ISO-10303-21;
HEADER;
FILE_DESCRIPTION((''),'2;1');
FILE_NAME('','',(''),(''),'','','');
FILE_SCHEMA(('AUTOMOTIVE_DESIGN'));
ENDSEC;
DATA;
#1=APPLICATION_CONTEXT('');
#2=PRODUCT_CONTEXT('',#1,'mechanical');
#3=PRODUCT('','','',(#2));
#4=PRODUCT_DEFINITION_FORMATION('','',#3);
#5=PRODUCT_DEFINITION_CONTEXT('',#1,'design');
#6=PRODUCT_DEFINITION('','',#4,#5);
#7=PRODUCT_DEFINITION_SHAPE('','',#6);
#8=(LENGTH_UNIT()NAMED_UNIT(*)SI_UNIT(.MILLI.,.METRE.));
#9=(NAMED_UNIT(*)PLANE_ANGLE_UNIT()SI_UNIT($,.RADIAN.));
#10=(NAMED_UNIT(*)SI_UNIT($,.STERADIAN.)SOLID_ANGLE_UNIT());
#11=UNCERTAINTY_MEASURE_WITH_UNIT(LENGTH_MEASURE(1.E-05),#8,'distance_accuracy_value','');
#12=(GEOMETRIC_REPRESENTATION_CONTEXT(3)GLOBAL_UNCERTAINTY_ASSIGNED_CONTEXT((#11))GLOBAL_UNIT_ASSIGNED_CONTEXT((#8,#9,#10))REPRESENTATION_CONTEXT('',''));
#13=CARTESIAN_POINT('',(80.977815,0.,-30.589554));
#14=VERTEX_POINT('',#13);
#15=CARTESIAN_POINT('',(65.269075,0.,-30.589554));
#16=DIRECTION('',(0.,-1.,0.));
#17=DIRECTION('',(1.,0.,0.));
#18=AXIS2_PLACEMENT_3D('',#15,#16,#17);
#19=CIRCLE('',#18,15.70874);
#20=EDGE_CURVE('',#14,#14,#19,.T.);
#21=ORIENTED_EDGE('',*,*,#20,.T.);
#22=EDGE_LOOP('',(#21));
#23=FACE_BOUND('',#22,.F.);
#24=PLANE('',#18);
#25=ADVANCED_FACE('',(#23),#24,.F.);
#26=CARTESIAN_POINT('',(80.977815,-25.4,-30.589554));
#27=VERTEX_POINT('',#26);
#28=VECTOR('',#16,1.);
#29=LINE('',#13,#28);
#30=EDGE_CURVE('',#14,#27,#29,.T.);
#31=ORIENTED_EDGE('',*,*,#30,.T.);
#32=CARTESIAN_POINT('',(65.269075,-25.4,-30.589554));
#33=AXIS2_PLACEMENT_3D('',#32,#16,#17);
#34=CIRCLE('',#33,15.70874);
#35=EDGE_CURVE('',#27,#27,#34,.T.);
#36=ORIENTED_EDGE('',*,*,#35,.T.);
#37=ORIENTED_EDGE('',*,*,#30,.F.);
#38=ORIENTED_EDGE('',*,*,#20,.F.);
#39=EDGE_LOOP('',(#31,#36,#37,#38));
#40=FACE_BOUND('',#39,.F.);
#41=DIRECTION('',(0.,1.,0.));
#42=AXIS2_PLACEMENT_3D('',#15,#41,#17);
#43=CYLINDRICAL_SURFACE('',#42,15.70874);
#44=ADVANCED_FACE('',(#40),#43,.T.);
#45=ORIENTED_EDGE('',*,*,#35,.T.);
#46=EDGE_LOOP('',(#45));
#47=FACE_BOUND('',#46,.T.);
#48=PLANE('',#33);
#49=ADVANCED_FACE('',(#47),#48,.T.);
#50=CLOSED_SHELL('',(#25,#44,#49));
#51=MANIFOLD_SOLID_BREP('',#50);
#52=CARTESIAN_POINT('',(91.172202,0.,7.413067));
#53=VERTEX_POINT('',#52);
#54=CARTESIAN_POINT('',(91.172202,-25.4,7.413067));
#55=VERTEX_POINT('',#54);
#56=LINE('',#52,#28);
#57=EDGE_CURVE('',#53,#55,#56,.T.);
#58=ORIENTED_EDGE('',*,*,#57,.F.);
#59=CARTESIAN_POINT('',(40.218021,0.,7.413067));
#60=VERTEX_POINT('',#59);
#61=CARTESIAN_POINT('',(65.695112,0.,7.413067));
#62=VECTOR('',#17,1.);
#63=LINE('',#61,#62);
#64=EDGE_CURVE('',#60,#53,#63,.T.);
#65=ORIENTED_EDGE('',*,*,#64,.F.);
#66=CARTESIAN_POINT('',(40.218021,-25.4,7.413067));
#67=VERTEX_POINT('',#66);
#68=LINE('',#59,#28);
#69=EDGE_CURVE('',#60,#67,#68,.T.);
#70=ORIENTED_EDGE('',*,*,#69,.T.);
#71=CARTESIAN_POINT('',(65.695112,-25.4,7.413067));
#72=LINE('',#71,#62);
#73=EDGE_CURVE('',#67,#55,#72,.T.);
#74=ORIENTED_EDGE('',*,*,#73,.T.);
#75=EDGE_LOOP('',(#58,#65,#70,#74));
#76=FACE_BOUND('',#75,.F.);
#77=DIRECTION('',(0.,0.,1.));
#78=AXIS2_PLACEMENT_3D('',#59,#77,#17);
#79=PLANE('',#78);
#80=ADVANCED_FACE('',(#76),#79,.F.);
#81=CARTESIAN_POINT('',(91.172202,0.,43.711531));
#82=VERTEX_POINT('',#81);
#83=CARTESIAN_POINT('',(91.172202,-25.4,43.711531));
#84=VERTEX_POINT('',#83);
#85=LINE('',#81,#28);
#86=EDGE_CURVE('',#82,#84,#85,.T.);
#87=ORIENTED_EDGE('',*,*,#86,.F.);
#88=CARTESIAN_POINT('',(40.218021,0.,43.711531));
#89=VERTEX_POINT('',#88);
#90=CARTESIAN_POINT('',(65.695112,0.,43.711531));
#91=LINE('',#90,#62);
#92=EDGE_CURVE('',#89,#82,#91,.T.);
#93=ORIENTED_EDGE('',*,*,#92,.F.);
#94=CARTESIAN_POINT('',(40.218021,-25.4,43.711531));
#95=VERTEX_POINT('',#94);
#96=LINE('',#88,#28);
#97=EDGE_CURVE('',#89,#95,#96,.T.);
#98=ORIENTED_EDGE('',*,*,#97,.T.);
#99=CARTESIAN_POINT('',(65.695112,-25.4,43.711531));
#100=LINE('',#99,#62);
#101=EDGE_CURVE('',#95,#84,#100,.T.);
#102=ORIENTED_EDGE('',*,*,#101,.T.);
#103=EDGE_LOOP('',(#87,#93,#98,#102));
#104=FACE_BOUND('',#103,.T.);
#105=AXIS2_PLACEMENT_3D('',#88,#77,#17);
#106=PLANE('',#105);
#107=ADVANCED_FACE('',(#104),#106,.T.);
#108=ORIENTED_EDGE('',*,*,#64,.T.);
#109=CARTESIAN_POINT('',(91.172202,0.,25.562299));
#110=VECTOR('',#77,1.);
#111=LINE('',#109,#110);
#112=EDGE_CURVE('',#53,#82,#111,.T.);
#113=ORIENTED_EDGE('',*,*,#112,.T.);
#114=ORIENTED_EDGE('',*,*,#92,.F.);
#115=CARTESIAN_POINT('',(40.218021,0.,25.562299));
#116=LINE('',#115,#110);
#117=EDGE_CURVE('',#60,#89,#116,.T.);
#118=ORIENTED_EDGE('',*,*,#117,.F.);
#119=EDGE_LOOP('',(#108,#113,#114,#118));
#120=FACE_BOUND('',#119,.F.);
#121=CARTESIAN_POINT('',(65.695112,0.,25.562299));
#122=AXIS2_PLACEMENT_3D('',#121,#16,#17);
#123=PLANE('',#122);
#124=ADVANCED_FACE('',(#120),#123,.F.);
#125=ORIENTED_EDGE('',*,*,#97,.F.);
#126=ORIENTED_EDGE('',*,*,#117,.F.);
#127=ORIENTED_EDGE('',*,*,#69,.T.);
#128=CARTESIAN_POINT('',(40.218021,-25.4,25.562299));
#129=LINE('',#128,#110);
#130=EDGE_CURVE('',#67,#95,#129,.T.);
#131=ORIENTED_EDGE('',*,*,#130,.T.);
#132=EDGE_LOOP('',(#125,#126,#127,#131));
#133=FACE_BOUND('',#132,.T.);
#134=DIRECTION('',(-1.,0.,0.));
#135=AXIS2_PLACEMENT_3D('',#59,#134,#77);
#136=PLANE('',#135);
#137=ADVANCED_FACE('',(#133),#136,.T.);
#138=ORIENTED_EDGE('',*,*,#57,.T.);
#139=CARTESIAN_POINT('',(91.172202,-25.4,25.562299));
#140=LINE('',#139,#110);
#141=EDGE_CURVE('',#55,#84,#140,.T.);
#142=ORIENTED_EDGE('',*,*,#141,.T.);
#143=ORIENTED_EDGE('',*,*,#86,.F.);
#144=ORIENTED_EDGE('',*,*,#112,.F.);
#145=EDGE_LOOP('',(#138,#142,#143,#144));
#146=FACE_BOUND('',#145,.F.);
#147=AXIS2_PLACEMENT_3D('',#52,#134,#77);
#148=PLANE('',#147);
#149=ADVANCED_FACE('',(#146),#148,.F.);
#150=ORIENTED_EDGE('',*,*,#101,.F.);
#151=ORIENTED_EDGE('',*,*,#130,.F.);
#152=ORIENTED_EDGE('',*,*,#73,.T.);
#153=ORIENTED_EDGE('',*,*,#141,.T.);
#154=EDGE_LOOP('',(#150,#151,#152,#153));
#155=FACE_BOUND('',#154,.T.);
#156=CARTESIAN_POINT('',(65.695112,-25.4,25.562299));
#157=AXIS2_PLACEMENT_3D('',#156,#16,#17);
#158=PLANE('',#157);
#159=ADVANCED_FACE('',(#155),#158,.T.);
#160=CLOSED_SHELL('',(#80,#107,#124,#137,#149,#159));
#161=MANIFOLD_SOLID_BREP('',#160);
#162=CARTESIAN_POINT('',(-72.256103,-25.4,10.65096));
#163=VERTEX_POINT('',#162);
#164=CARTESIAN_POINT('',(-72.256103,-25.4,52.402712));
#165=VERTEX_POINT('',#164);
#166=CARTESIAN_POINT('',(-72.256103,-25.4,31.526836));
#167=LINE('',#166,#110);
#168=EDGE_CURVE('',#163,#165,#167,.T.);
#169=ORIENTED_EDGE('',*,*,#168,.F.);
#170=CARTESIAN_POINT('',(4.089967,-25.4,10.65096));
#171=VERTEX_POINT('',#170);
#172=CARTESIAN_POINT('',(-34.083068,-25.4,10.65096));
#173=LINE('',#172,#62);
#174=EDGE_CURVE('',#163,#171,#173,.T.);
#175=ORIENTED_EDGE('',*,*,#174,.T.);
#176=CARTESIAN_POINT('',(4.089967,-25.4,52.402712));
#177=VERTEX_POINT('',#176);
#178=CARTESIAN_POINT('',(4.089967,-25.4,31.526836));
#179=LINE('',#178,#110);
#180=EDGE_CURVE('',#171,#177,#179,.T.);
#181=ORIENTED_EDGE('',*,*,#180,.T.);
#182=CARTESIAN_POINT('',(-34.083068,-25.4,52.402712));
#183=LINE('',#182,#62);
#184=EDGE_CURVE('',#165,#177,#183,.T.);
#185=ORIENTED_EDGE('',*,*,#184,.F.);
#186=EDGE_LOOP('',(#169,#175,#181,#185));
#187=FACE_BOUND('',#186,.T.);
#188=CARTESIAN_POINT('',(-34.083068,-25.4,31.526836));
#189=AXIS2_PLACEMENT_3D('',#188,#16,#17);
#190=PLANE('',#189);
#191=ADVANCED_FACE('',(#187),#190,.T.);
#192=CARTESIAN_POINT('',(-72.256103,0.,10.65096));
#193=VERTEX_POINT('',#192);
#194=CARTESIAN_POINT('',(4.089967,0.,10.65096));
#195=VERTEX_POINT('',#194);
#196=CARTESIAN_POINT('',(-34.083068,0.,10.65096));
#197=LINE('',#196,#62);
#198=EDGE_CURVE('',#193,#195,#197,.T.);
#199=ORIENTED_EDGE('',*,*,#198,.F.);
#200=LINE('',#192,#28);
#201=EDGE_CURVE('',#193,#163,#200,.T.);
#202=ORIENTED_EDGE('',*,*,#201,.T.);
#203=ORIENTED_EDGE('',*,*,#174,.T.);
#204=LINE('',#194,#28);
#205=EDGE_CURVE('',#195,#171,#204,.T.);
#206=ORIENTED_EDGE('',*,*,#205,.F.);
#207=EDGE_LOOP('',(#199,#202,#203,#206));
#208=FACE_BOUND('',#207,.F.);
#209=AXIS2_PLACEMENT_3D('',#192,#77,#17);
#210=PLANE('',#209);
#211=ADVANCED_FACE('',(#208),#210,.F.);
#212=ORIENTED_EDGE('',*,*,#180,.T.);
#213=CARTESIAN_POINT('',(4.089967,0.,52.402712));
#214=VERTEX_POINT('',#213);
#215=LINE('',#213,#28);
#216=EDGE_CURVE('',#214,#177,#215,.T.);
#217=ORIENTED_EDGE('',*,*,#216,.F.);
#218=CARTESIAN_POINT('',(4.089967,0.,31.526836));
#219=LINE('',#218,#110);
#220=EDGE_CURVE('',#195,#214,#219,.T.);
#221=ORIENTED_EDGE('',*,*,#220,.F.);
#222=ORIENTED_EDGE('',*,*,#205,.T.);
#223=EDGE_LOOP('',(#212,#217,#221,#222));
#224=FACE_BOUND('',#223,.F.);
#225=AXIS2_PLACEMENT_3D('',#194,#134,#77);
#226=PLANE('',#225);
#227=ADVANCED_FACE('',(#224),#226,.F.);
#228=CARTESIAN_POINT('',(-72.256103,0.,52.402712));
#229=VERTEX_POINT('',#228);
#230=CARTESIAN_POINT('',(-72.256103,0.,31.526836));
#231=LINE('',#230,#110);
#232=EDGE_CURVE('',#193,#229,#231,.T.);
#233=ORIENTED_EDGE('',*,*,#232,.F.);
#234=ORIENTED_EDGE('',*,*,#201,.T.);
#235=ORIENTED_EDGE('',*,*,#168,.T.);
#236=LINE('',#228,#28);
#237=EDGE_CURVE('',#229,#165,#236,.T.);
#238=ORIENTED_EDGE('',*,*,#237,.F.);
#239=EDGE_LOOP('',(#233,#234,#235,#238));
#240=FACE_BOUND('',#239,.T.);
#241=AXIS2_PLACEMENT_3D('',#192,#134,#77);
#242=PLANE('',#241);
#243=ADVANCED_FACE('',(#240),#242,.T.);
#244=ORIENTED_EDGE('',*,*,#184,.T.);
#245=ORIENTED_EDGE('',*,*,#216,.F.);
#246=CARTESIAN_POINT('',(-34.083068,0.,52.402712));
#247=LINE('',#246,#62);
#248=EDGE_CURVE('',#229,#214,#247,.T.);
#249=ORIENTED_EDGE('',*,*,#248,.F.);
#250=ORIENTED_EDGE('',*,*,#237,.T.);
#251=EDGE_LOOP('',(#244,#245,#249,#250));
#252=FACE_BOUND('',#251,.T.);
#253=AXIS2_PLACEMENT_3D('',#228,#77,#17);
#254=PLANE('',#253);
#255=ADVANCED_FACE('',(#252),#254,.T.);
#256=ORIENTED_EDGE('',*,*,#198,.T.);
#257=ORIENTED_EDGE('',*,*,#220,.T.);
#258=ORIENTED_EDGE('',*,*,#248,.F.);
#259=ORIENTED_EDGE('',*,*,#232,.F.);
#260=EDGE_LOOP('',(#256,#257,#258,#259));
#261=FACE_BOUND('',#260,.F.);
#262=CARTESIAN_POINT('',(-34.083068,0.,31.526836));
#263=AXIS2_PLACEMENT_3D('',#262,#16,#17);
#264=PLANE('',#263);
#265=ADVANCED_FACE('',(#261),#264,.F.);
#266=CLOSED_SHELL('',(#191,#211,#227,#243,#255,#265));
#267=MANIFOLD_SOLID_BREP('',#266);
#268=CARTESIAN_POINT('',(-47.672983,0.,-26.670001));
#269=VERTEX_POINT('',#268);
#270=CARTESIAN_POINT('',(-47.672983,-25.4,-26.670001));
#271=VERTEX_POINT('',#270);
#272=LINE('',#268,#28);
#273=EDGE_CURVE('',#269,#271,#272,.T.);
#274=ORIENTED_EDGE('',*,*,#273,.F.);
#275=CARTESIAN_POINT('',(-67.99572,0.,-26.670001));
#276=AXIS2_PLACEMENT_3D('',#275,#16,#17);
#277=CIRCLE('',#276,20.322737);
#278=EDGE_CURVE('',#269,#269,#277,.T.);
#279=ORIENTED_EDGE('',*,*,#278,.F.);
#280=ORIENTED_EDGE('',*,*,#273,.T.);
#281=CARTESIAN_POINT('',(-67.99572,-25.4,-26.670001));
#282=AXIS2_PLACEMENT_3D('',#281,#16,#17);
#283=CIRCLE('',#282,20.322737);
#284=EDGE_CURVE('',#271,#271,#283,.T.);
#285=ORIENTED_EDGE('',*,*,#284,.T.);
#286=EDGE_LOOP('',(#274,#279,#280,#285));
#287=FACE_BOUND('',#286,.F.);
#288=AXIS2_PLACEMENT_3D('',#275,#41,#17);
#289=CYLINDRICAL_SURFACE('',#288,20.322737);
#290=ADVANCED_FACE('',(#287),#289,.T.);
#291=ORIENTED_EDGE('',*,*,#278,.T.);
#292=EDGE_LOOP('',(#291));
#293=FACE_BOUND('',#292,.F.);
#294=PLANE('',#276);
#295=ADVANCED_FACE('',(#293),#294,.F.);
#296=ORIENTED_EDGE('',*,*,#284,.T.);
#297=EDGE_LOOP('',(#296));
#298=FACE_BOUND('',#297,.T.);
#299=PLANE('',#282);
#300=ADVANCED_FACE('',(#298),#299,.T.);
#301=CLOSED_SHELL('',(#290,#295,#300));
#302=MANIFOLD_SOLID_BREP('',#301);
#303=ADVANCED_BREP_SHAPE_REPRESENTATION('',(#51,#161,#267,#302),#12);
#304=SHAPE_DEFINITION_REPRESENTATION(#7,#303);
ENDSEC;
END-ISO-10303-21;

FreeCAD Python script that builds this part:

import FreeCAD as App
import Part
import Sketcher

V = App.Vector
Q = App.Units.Quantity


def add_polygon(sketch, points):
    """Adds a closed chain of lines whose ends are joined by coincident constraints."""
    first, n = sketch.GeometryCount, len(points)
    for a, b in zip(points, points[1:] + points[:1]):
        sketch.addGeometry(Part.LineSegment(App.Vector(*a, 0), App.Vector(*b, 0)), False)
    for i in range(n):
        sketch.addConstraint(Sketcher.Constraint("Coincident", first + i, 2, first + (i + 1) % n, 1))

doc = App.newDocument("Part")
params = doc.addObject("Spreadsheet::Sheet", "Params")
for row, (alias, value) in enumerate([
    ("pad1_length", "1 in"),
], start=1):
    params.set(f"A{row}", alias)
    params.set(f"B{row}", "=" + value)
    params.setAlias(f"B{row}", alias)

body = doc.addObject("PartDesign::Body", "Body")
body.AllowCompound = True

# Sketch on XZ plane
sketch1 = body.newObject("Sketcher::SketchObject", "Sketch")
sketch1.AttachmentSupport = (doc.getObject("XZ_Plane"), [""])
sketch1.MapMode = "FlatFace"
add_polygon(sketch1, [(-72, 52), (-72, 11), (4, 11), (4, 52)])  # lines 0-3
add_polygon(sketch1, [(40, 44), (40, 7), (91, 7), (91, 44)])  # lines 4-7
sketch1.addGeometry(Part.Circle(V(-68, -27, 0), V(0, 0, 1), 20), False)  # 8
sketch1.addGeometry(Part.Circle(V(65, -31, 0), V(0, 0, 1), 16), False)  # 9
sketch1.addConstraint([
    Sketcher.Constraint("Vertical", 0),
    Sketcher.Constraint("Horizontal", 1),
    Sketcher.Constraint("Vertical", 2),
    Sketcher.Constraint("Horizontal", 3),
    Sketcher.Constraint("Vertical", 4),
    Sketcher.Constraint("Horizontal", 5),
    Sketcher.Constraint("Vertical", 6),
    Sketcher.Constraint("Horizontal", 7),
    Sketcher.Constraint("DistanceY", 8, 3, -1, 1, Q("1.05 in")),
    Sketcher.Constraint("Diameter", 9, Q("31.41748 mm")),
    Sketcher.Constraint("Diameter", 8, Q("40.645474 mm")),
    Sketcher.Constraint("DistanceX", 1, 1, 1, 2, Q("76.34607 mm")),
    Sketcher.Constraint("DistanceX", 5, 1, 5, 2, Q("50.954181 mm")),
    Sketcher.Constraint("DistanceY", 0, 2, 0, 1, Q("41.751753 mm")),
    Sketcher.Constraint("DistanceY", 4, 2, 4, 1, Q("36.298465 mm")),
    Sketcher.Constraint("DistanceX", 8, 3, -1, 1, Q("67.99572 mm")),
    Sketcher.Constraint("DistanceY", -1, 1, 0, 2, Q("10.65096 mm")),
    Sketcher.Constraint("DistanceX", -1, 1, 4, 2, Q("40.218021 mm")),
    Sketcher.Constraint("DistanceY", -1, 1, 6, 2, Q("43.711531 mm")),
    Sketcher.Constraint("DistanceY", 9, 3, 4, 2, Q("38.00262 mm")),
    Sketcher.Constraint("DistanceX", -1, 1, 9, 3, Q("65.269075 mm")),
    Sketcher.Constraint("DistanceX", 0, 2, -1, 1, Q("72.256103 mm")),
])
pad1 = body.newObject("PartDesign::Pad", "Pad")
pad1.Profile = sketch1
pad1.setExpression("Length", "Params.pad1_length")

doc.recompute()
